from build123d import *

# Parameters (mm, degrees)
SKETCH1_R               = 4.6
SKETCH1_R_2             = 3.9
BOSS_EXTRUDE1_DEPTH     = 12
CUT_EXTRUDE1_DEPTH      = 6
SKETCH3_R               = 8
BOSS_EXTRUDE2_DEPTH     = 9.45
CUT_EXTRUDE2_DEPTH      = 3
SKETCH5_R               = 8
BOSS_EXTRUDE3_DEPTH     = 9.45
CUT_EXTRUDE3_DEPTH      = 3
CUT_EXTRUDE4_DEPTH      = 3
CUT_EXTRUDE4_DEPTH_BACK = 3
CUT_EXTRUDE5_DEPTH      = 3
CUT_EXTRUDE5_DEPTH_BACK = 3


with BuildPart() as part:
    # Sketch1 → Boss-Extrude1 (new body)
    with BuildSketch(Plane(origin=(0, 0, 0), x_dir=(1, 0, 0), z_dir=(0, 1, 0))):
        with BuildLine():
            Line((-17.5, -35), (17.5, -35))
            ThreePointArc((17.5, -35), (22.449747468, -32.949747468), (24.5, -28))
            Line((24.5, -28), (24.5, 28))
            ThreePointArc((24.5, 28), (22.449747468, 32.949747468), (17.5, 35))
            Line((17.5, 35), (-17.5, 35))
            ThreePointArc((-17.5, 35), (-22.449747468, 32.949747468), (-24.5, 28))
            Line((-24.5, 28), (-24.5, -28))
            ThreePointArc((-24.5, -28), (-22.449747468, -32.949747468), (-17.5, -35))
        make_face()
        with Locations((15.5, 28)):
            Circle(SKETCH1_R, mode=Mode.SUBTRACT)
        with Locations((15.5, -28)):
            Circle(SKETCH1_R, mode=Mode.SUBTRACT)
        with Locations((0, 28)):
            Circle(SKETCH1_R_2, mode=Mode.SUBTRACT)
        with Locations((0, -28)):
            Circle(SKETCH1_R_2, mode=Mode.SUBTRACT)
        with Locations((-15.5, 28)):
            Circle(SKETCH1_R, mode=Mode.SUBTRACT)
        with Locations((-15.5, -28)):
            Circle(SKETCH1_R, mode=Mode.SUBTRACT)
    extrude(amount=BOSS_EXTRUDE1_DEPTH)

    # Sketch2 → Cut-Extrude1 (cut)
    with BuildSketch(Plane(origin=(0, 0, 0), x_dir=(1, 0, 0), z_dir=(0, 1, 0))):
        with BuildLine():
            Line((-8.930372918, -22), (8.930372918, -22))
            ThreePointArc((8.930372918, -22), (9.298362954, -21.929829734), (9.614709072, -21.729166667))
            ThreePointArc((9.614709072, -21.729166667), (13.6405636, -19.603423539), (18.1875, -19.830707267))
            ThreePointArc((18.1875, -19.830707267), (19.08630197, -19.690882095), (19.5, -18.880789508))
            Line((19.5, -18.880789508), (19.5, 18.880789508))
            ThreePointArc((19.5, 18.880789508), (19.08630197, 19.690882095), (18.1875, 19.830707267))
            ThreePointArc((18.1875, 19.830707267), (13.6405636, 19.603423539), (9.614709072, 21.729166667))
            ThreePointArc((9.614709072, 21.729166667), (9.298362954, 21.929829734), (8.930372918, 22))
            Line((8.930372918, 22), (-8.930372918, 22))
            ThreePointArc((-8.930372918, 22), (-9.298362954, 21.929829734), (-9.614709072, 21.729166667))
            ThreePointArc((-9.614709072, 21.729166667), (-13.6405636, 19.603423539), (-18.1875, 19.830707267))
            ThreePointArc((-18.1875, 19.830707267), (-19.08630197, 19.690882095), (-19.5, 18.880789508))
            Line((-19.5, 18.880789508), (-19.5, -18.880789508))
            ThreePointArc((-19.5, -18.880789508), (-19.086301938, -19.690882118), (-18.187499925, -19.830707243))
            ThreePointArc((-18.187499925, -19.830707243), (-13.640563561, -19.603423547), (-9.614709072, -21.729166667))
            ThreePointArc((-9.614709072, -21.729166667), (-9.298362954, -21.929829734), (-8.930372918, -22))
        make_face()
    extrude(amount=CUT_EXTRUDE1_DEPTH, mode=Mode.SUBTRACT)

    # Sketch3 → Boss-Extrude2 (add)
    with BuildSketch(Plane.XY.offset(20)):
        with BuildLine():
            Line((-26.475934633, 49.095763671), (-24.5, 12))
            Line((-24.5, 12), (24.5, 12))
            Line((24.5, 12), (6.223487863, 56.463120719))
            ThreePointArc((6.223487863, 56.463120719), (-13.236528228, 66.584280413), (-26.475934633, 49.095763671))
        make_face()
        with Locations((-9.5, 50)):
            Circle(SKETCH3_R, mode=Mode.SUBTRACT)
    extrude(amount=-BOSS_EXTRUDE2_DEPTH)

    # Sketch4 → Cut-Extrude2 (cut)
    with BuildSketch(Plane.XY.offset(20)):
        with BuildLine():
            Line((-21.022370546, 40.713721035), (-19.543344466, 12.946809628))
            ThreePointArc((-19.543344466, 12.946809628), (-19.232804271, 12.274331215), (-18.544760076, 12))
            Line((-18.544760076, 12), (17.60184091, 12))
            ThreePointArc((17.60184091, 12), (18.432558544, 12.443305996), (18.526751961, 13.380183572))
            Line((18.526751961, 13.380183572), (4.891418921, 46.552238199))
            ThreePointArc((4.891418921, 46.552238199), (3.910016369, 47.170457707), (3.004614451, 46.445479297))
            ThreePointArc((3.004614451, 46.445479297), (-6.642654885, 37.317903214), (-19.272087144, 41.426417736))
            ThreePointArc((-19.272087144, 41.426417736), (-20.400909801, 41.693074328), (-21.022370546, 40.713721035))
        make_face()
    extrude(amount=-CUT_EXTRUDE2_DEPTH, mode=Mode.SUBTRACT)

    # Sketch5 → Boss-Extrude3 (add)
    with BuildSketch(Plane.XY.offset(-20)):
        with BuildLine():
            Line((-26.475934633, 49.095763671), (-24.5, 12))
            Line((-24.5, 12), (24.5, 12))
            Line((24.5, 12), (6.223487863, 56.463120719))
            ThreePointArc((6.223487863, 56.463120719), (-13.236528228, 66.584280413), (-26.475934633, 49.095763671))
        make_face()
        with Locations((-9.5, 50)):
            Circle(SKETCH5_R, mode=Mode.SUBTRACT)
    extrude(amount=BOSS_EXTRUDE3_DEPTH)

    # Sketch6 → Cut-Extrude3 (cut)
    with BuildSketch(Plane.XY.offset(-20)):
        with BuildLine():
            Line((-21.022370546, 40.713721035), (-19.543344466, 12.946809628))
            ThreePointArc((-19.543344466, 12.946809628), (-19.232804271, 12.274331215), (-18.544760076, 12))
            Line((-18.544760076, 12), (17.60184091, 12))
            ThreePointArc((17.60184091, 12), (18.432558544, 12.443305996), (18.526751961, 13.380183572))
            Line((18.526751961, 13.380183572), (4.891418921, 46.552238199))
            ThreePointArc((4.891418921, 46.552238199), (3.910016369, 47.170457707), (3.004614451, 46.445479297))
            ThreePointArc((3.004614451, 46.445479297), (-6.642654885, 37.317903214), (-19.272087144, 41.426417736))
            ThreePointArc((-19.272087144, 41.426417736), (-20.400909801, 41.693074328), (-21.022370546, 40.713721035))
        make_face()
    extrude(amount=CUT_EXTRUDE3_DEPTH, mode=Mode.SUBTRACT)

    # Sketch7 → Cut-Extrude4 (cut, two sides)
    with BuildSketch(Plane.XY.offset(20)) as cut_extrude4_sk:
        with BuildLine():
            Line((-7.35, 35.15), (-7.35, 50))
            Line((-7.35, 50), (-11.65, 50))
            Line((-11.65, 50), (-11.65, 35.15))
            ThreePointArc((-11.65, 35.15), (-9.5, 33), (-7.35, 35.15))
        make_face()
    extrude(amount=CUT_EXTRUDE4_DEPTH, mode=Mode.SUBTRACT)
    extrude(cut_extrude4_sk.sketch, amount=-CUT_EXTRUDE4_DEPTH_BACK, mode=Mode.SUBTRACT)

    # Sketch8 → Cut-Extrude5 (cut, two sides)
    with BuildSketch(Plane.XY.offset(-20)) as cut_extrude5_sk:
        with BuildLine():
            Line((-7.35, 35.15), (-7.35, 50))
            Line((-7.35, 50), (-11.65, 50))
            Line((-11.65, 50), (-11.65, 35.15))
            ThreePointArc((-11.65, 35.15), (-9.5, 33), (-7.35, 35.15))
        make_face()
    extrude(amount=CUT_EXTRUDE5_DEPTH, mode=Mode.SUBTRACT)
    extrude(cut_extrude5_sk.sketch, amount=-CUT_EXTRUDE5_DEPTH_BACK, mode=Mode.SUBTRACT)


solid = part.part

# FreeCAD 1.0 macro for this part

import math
import FreeCAD as App
import Part
import Sketcher
from FreeCAD import Vector

doc = App.newDocument("Part")
body = doc.addObject("PartDesign::Body", "Body")

# Sketch on XZ plane
sketch1 = body.newObject("Sketcher::SketchObject", "Sketch")
sketch1.AttachmentSupport = (doc.getObject("XZ_Plane"), [""])
sketch1.MapMode = "FlatFace"
sketch1.addGeometry([
    Part.LineSegment(Vector(-17.5, 35, 0), Vector(17.5, 35, 0)),  # 0
    Part.ArcOfCircle(Part.Circle(Vector(17.5, 28, 0), Vector(0, 0, 1), 7), math.radians(0), math.radians(90)),  # 1
    Part.LineSegment(Vector(24.5, 28, 0), Vector(24.5, -28, 0)),  # 2
    Part.ArcOfCircle(Part.Circle(Vector(17.5, -28, 0), Vector(0, 0, 1), 7), math.radians(-90), math.radians(0)),  # 3
    Part.LineSegment(Vector(17.5, -35, 0), Vector(-17.5, -35, 0)),  # 4
    Part.ArcOfCircle(Part.Circle(Vector(-17.5, -28, 0), Vector(0, 0, 1), 7), math.radians(-180), math.radians(-90)),  # 5
    Part.LineSegment(Vector(-24.5, -28, 0), Vector(-24.5, 28, 0)),  # 6
    Part.ArcOfCircle(Part.Circle(Vector(-17.5, 28, 0), Vector(0, 0, 1), 7), math.radians(90), math.radians(180)),  # 7
    Part.Circle(Vector(-15.5, 28, 0), Vector(0, 0, 1), 4.6),  # 8
    Part.Circle(Vector(0, 28, 0), Vector(0, 0, 1), 3.9),  # 9
    Part.Circle(Vector(15.5, 28, 0), Vector(0, 0, 1), 4.6),  # 10
    Part.Circle(Vector(-15.5, -28, 0), Vector(0, 0, 1), 4.6),  # 11
    Part.Circle(Vector(0, -28, 0), Vector(0, 0, 1), 3.9),  # 12
    Part.Circle(Vector(15.5, -28, 0), Vector(0, 0, 1), 4.6),  # 13
], False)
sketch1.addConstraint([
    Sketcher.Constraint("Tangent", 0, 2, 1, 2),
    Sketcher.Constraint("Tangent", 1, 1, 2, 1),
    Sketcher.Constraint("Tangent", 2, 2, 3, 2),
    Sketcher.Constraint("Tangent", 3, 1, 4, 1),
    Sketcher.Constraint("Tangent", 4, 2, 5, 2),
    Sketcher.Constraint("Tangent", 5, 1, 6, 1),
    Sketcher.Constraint("Tangent", 6, 2, 7, 2),
    Sketcher.Constraint("Tangent", 7, 1, 0, 1),
    Sketcher.Constraint("Horizontal", 0),
    Sketcher.Constraint("Vertical", 2),
    Sketcher.Constraint("Horizontal", 4),
    Sketcher.Constraint("Vertical", 6),
    Sketcher.Constraint("Equal", 1, 3),
    Sketcher.Constraint("Equal", 3, 5),
    Sketcher.Constraint("Equal", 5, 7),
    Sketcher.Constraint("Equal", 8, 10),
    Sketcher.Constraint("Equal", 10, 11),
    Sketcher.Constraint("Equal", 9, 12),
    Sketcher.Constraint("Equal", 11, 13),
    Sketcher.Constraint("Symmetric", 1, 3, 5, 3, -1, 1),
    Sketcher.Constraint("Symmetric", 10, 3, 11, 3, -1, 1),
    Sketcher.Constraint("Symmetric", 9, 3, 12, 3, -1, 1),
    Sketcher.Constraint("Symmetric", 8, 3, 13, 3, -1, 1),
    Sketcher.Constraint("Symmetric", 8, 3, 10, 3, -2),
    Sketcher.Constraint("PointOnObject", 9, 3, -2),
    Sketcher.Constraint("Horizontal", 7, 3, 8, 3),
    Sketcher.Constraint("Horizontal", 8, 3, 9, 3),
    Sketcher.Constraint("Radius", 1, 7.0),
    Sketcher.Constraint("Diameter", 8, 9.2),
    Sketcher.Constraint("Diameter", 9, 7.8),
    Sketcher.Constraint("DistanceX", 0, 1, 0, 2, 35.0),
    Sketcher.Constraint("DistanceY", 2, 2, 2, 1, 56.0),
    Sketcher.Constraint("DistanceX", 7, 3, 8, 3, 2.0),
])
pad1 = body.newObject("PartDesign::Pad", "Pad")
pad1.Profile = sketch1
pad1.Length = 12
pad1.Reversed = True

# Sketch on XZ plane
sketch2 = body.newObject("Sketcher::SketchObject", "Sketch001")
sketch2.AttachmentSupport = (doc.getObject("XZ_Plane"), [""])
sketch2.MapMode = "FlatFace"
sketch2.addGeometry([
    Part.LineSegment(Vector(-8.9, 22, 0), Vector(8.9, 22, 0)),  # 0
    Part.ArcOfCircle(Part.Circle(Vector(8.9, 21, 0), Vector(0, 0, 1), 1), math.radians(47), math.radians(90)),  # 1
    Part.ArcOfCircle(Part.Circle(Vector(15.5, 28, 0), Vector(0, 0, 1), 8.6), math.radians(-133), math.radians(-72)),  # 2
    Part.ArcOfCircle(Part.Circle(Vector(18.5, 18.9, 0), Vector(0, 0, 1), 1), math.radians(0), math.radians(108)),  # 3
    Part.LineSegment(Vector(19.5, 18.9, 0), Vector(19.5, -18.9, 0)),  # 4
    Part.ArcOfCircle(Part.Circle(Vector(18.5, -18.9, 0), Vector(0, 0, 1), 1), math.radians(-108), math.radians(0)),  # 5
    Part.ArcOfCircle(Part.Circle(Vector(15.5, -28, 0), Vector(0, 0, 1), 8.6), math.radians(72), math.radians(133)),  # 6
    Part.ArcOfCircle(Part.Circle(Vector(8.9, -21, 0), Vector(0, 0, 1), 1), math.radians(-90), math.radians(-47)),  # 7
    Part.LineSegment(Vector(8.9, -22, 0), Vector(-8.9, -22, 0)),  # 8
    Part.ArcOfCircle(Part.Circle(Vector(-8.9, -21, 0), Vector(0, 0, 1), 1), math.radians(-133), math.radians(-90)),  # 9
    Part.ArcOfCircle(Part.Circle(Vector(-15.5, -28, 0), Vector(0, 0, 1), 8.6), math.radians(47), math.radians(108)),  # 10
    Part.ArcOfCircle(Part.Circle(Vector(-18.5, -18.9, 0), Vector(0, 0, 1), 1), math.radians(180), math.radians(288)),  # 11
    Part.LineSegment(Vector(-19.5, -18.9, 0), Vector(-19.5, 18.9, 0)),  # 12
    Part.ArcOfCircle(Part.Circle(Vector(-18.5, 18.9, 0), Vector(0, 0, 1), 1), math.radians(72), math.radians(180)),  # 13
    Part.ArcOfCircle(Part.Circle(Vector(-15.5, 28, 0), Vector(0, 0, 1), 8.6), math.radians(-108), math.radians(-47)),  # 14
    Part.ArcOfCircle(Part.Circle(Vector(-8.9, 21, 0), Vector(0, 0, 1), 1), math.radians(90), math.radians(133)),  # 15
], False)
sketch2.addConstraint([
    Sketcher.Constraint("Tangent", 0, 2, 1, 2),
    Sketcher.Constraint("Tangent", 1, 1, 2, 1),
    Sketcher.Constraint("Tangent", 2, 2, 3, 2),
    Sketcher.Constraint("Tangent", 3, 1, 4, 1),
    Sketcher.Constraint("Tangent", 4, 2, 5, 2),
    Sketcher.Constraint("Tangent", 5, 1, 6, 1),
    Sketcher.Constraint("Tangent", 6, 2, 7, 2),
    Sketcher.Constraint("Tangent", 7, 1, 8, 1),
    Sketcher.Constraint("Tangent", 8, 2, 9, 2),
    Sketcher.Constraint("Tangent", 9, 1, 10, 1),
    Sketcher.Constraint("Tangent", 10, 2, 11, 2),
    Sketcher.Constraint("Tangent", 11, 1, 12, 1),
    Sketcher.Constraint("Tangent", 12, 2, 13, 2),
    Sketcher.Constraint("Tangent", 13, 1, 14, 1),
    Sketcher.Constraint("Tangent", 14, 2, 15, 2),
    Sketcher.Constraint("Tangent", 15, 1, 0, 1),
    Sketcher.Constraint("Horizontal", 0),
    Sketcher.Constraint("Vertical", 4),
    Sketcher.Constraint("Horizontal", 8),
    Sketcher.Constraint("Vertical", 12),
    Sketcher.Constraint("Equal", 1, 3),
    Sketcher.Constraint("Equal", 3, 5),
    Sketcher.Constraint("Equal", 2, 6),
    Sketcher.Constraint("Equal", 5, 7),
    Sketcher.Constraint("Equal", 7, 9),
    Sketcher.Constraint("Equal", 6, 10),
    Sketcher.Constraint("Equal", 9, 11),
    Sketcher.Constraint("Equal", 11, 13),
    Sketcher.Constraint("Equal", 10, 14),
    Sketcher.Constraint("Equal", 13, 15),
    Sketcher.Constraint("Symmetric", 1, 3, 9, 3, -1, 1),
    Sketcher.Constraint("Symmetric", 3, 3, 11, 3, -1, 1),
    Sketcher.Constraint("Symmetric", 6, 3, 14, 3, -1, 1),
    Sketcher.Constraint("Symmetric", 6, 3, 10, 3, -2),
    Sketcher.Constraint("Radius", 1, 1.0),
    Sketcher.Constraint("Radius", 2, 8.6),
    Sketcher.Constraint("DistanceY", -1, 1, 1, 3, 21.0),
    Sketcher.Constraint("DistanceY", -1, 1, 2, 3, 28.0),
    Sketcher.Constraint("DistanceX", 2, 3, 3, 3, 3.0),
    Sketcher.Constraint("DistanceX", 10, 3, 6, 3, 31.0),
])
pocket1 = body.newObject("PartDesign::Pocket", "Pocket")
pocket1.Profile = sketch2
pocket1.Length = 6

# Sketch on XY plane
sketch3 = body.newObject("Sketcher::SketchObject", "Sketch002")
sketch3.AttachmentSupport = (doc.getObject("XY_Plane"), [""])
sketch3.MapMode = "FlatFace"
sketch3.AttachmentOffset = App.Placement(Vector(0, 0, 20), App.Rotation())
sketch3.addGeometry([
    Part.LineSegment(Vector(-26, 49, 0), Vector(-24, 12, 0)),  # 0
    Part.LineSegment(Vector(-24, 12, 0), Vector(24, 12, 0)),  # 1
    Part.LineSegment(Vector(24, 12, 0), Vector(6, 56, 0)),  # 2
    Part.ArcOfCircle(Part.Circle(Vector(-10, 50, 0), Vector(0, 0, 1), 17), math.radians(22), math.radians(183)),  # 3
    Part.Circle(Vector(-10, 50, 0), Vector(0, 0, 1), 8),  # 4
], False)
sketch3.addConstraint([
    Sketcher.Constraint("Coincident", 0, 2, 1, 1),
    Sketcher.Constraint("Coincident", 1, 2, 2, 1),
    Sketcher.Constraint("Tangent", 2, 2, 3, 1),
    Sketcher.Constraint("Tangent", 3, 2, 0, 1),
    Sketcher.Constraint("Horizontal", 1),
    Sketcher.Constraint("Coincident", 4, 3, 3, 3),
    Sketcher.Constraint("Diameter", 4, 16.0),
    Sketcher.Constraint("Radius", 3, 17.0),
    Sketcher.Constraint("DistanceX", 1, 1, 1, 2, 49.0),
    Sketcher.Constraint("DistanceY", -1, 1, 3, 3, 50.0),
    Sketcher.Constraint("DistanceY", -1, 1, 0, 2, 12.0),
    Sketcher.Constraint("DistanceX", 0, 2, 3, 3, 15.0),
    Sketcher.Constraint("DistanceX", 3, 3, -1, 1, 9.5),
])
pad2 = body.newObject("PartDesign::Pad", "Pad001")
pad2.Profile = sketch3
pad2.Length = 9.45
pad2.Reversed = True

# Sketch on XY plane
sketch4 = body.newObject("Sketcher::SketchObject", "Sketch003")
sketch4.AttachmentSupport = (doc.getObject("XY_Plane"), [""])
sketch4.MapMode = "FlatFace"
sketch4.AttachmentOffset = App.Placement(Vector(0, 0, 20), App.Rotation())
sketch4.addGeometry([
    Part.LineSegment(Vector(-21, 40.7, 0), Vector(-19.5, 12.9, 0)),  # 0
    Part.ArcOfCircle(Part.Circle(Vector(-18.5, 13, 0), Vector(0, 0, 1), 1), math.radians(-177), math.radians(-90)),  # 1
    Part.LineSegment(Vector(-18.5, 12, 0), Vector(17.6, 12, 0)),  # 2
    Part.ArcOfCircle(Part.Circle(Vector(17.6, 13, 0), Vector(0, 0, 1), 1), math.radians(-90), math.radians(22)),  # 3
    Part.LineSegment(Vector(18.5, 13.4, 0), Vector(4.9, 46.6, 0)),  # 4
    Part.ArcOfCircle(Part.Circle(Vector(4, 46.2, 0), Vector(0, 0, 1), 1), math.radians(22), math.radians(164)),  # 5
    Part.ArcOfCircle(Part.Circle(Vector(-9.5, 50, 0), Vector(0, 0, 1), 13), math.radians(-139), math.radians(-16)),  # 6
    Part.ArcOfCircle(Part.Circle(Vector(-20, 40.8, 0), Vector(0, 0, 1), 1), math.radians(41), math.radians(183)),  # 7
], False)
sketch4.addConstraint([
    Sketcher.Constraint("Tangent", 0, 2, 1, 1),
    Sketcher.Constraint("Tangent", 1, 2, 2, 1),
    Sketcher.Constraint("Tangent", 2, 2, 3, 1),
    Sketcher.Constraint("Tangent", 3, 2, 4, 1),
    Sketcher.Constraint("Tangent", 4, 2, 5, 1),
    Sketcher.Constraint("Tangent", 5, 2, 6, 2),
    Sketcher.Constraint("Tangent", 6, 1, 7, 1),
    Sketcher.Constraint("Tangent", 7, 2, 0, 1),
    Sketcher.Constraint("Horizontal", 2),
    Sketcher.Constraint("Equal", 1, 3),
    Sketcher.Constraint("Equal", 3, 5),
    Sketcher.Constraint("Equal", 5, 7),
    Sketcher.Constraint("Radius", 1, 1.0),
    Sketcher.Constraint("Radius", 6, 13.0),
    Sketcher.Constraint("DistanceY", -1, 1, 1, 3, 13.0),
    Sketcher.Constraint("DistanceY", -1, 1, 6, 3, 50.0),
    Sketcher.Constraint("DistanceX", 6, 3, -1, 1, 9.5),
    Sketcher.Constraint("DistanceX", 2, 1, 2, 2, 36.146601),
    Sketcher.Constraint("DistanceY", 0, 2, 7, 3, 27.820102),
    Sketcher.Constraint("DistanceX", 7, 3, 5, 2, 23.028401),
    Sketcher.Constraint("Distance", 4, 35.86513),
])
pocket2 = body.newObject("PartDesign::Pocket", "Pocket001")
pocket2.Profile = sketch4
pocket2.Length = 3

# Sketch on XY plane
sketch5 = body.newObject("Sketcher::SketchObject", "Sketch004")
sketch5.AttachmentSupport = (doc.getObject("XY_Plane"), [""])
sketch5.MapMode = "FlatFace"
sketch5.AttachmentOffset = App.Placement(Vector(0, 0, -20), App.Rotation())
sketch5.addGeometry([
    Part.LineSegment(Vector(-26, 49, 0), Vector(-24, 12, 0)),  # 0
    Part.LineSegment(Vector(-24, 12, 0), Vector(24, 12, 0)),  # 1
    Part.LineSegment(Vector(24, 12, 0), Vector(6, 56, 0)),  # 2
    Part.ArcOfCircle(Part.Circle(Vector(-10, 50, 0), Vector(0, 0, 1), 17), math.radians(22), math.radians(183)),  # 3
    Part.Circle(Vector(-10, 50, 0), Vector(0, 0, 1), 8),  # 4
], False)
sketch5.addConstraint([
    Sketcher.Constraint("Coincident", 0, 2, 1, 1),
    Sketcher.Constraint("Coincident", 1, 2, 2, 1),
    Sketcher.Constraint("Tangent", 2, 2, 3, 1),
    Sketcher.Constraint("Tangent", 3, 2, 0, 1),
    Sketcher.Constraint("Horizontal", 1),
    Sketcher.Constraint("Coincident", 4, 3, 3, 3),
    Sketcher.Constraint("Diameter", 4, 16.0),
    Sketcher.Constraint("Radius", 3, 17.0),
    Sketcher.Constraint("DistanceX", 1, 1, 1, 2, 49.0),
    Sketcher.Constraint("DistanceY", -1, 1, 3, 3, 50.0),
    Sketcher.Constraint("DistanceY", -1, 1, 0, 2, 12.0),
    Sketcher.Constraint("DistanceX", 0, 2, 3, 3, 15.0),
    Sketcher.Constraint("DistanceX", 3, 3, -1, 1, 9.5),
])
pad3 = body.newObject("PartDesign::Pad", "Pad002")
pad3.Profile = sketch5
pad3.Length = 9.45

# Sketch on XY plane
sketch6 = body.newObject("Sketcher::SketchObject", "Sketch005")
sketch6.AttachmentSupport = (doc.getObject("XY_Plane"), [""])
sketch6.MapMode = "FlatFace"
sketch6.AttachmentOffset = App.Placement(Vector(0, 0, -20), App.Rotation())
sketch6.addGeometry([
    Part.LineSegment(Vector(-21, 40.7, 0), Vector(-19.5, 12.9, 0)),  # 0
    Part.ArcOfCircle(Part.Circle(Vector(-18.5, 13, 0), Vector(0, 0, 1), 1), math.radians(-177), math.radians(-90)),  # 1
    Part.LineSegment(Vector(-18.5, 12, 0), Vector(17.6, 12, 0)),  # 2
    Part.ArcOfCircle(Part.Circle(Vector(17.6, 13, 0), Vector(0, 0, 1), 1), math.radians(-90), math.radians(22)),  # 3
    Part.LineSegment(Vector(18.5, 13.4, 0), Vector(4.9, 46.6, 0)),  # 4
    Part.ArcOfCircle(Part.Circle(Vector(4, 46.2, 0), Vector(0, 0, 1), 1), math.radians(22), math.radians(164)),  # 5
    Part.ArcOfCircle(Part.Circle(Vector(-9.5, 50, 0), Vector(0, 0, 1), 13), math.radians(-139), math.radians(-16)),  # 6
    Part.ArcOfCircle(Part.Circle(Vector(-20, 40.8, 0), Vector(0, 0, 1), 1), math.radians(41), math.radians(183)),  # 7
], False)
sketch6.addConstraint([
    Sketcher.Constraint("Tangent", 0, 2, 1, 1),
    Sketcher.Constraint("Tangent", 1, 2, 2, 1),
    Sketcher.Constraint("Tangent", 2, 2, 3, 1),
    Sketcher.Constraint("Tangent", 3, 2, 4, 1),
    Sketcher.Constraint("Tangent", 4, 2, 5, 1),
    Sketcher.Constraint("Tangent", 5, 2, 6, 2),
    Sketcher.Constraint("Tangent", 6, 1, 7, 1),
    Sketcher.Constraint("Tangent", 7, 2, 0, 1),
    Sketcher.Constraint("Horizontal", 2),
    Sketcher.Constraint("Equal", 1, 3),
    Sketcher.Constraint("Equal", 3, 5),
    Sketcher.Constraint("Equal", 5, 7),
    Sketcher.Constraint("Radius", 1, 1.0),
    Sketcher.Constraint("Radius", 6, 13.0),
    Sketcher.Constraint("DistanceY", -1, 1, 1, 3, 13.0),
    Sketcher.Constraint("DistanceY", -1, 1, 6, 3, 50.0),
    Sketcher.Constraint("DistanceX", 6, 3, -1, 1, 9.5),
    Sketcher.Constraint("DistanceX", 2, 1, 2, 2, 36.146601),
    Sketcher.Constraint("DistanceY", 0, 2, 7, 3, 27.820102),
    Sketcher.Constraint("DistanceX", 7, 3, 5, 2, 23.028401),
    Sketcher.Constraint("Distance", 4, 35.86513),
])
pocket3 = body.newObject("PartDesign::Pocket", "Pocket002")
pocket3.Profile = sketch6
pocket3.Length = 3
pocket3.Reversed = True

# Sketch on XY plane
sketch7 = body.newObject("Sketcher::SketchObject", "Sketch006")
sketch7.AttachmentSupport = (doc.getObject("XY_Plane"), [""])
sketch7.MapMode = "FlatFace"
sketch7.AttachmentOffset = App.Placement(Vector(0, 0, 20), App.Rotation())
sketch7.addGeometry([
    Part.LineSegment(Vector(-7.3, 35.1, 0), Vector(-7.3, 50, 0)),
    Part.LineSegment(Vector(-7.3, 50, 0), Vector(-11.7, 50, 0)),
    Part.LineSegment(Vector(-11.7, 50, 0), Vector(-11.7, 35.1, 0)),
    Part.ArcOfCircle(Part.Circle(Vector(-9.5, 35.1, 0), Vector(0, 0, 1), 2.1), math.radians(180), math.radians(360)),
], False)
sketch7.addConstraint([
    Sketcher.Constraint("Coincident", 0, 2, 1, 1),
    Sketcher.Constraint("Coincident", 1, 2, 2, 1),
    Sketcher.Constraint("Tangent", 2, 2, 3, 1),
    Sketcher.Constraint("Tangent", 3, 2, 0, 1),
    Sketcher.Constraint("Vertical", 0),
    Sketcher.Constraint("Horizontal", 1),
    Sketcher.Constraint("Vertical", 2),
    Sketcher.Constraint("Radius", 3, 2.15),
    Sketcher.Constraint("DistanceY", -1, 1, 0, 2, 50.0),
    Sketcher.Constraint("DistanceY", 0, 1, 0, 2, 14.85),
    Sketcher.Constraint("DistanceX", 3, 3, -1, 1, 9.5),
])
pocket4 = body.newObject("PartDesign::Pocket", "Pocket003")
pocket4.Profile = sketch7
pocket4.Type = "TwoLengths"
pocket4.Length = 3
pocket4.Length2 = 3
pocket4.Reversed = True

# Sketch on XY plane
sketch8 = body.newObject("Sketcher::SketchObject", "Sketch007")
sketch8.AttachmentSupport = (doc.getObject("XY_Plane"), [""])
sketch8.MapMode = "FlatFace"
sketch8.AttachmentOffset = App.Placement(Vector(0, 0, -20), App.Rotation())
sketch8.addGeometry([
    Part.LineSegment(Vector(-7.3, 35.1, 0), Vector(-7.3, 50, 0)),
    Part.LineSegment(Vector(-7.3, 50, 0), Vector(-11.7, 50, 0)),
    Part.LineSegment(Vector(-11.7, 50, 0), Vector(-11.7, 35.1, 0)),
    Part.ArcOfCircle(Part.Circle(Vector(-9.5, 35.1, 0), Vector(0, 0, 1), 2.1), math.radians(180), math.radians(360)),
], False)
sketch8.addConstraint([
    Sketcher.Constraint("Coincident", 0, 2, 1, 1),
    Sketcher.Constraint("Coincident", 1, 2, 2, 1),
    Sketcher.Constraint("Tangent", 2, 2, 3, 1),
    Sketcher.Constraint("Tangent", 3, 2, 0, 1),
    Sketcher.Constraint("Vertical", 0),
    Sketcher.Constraint("Horizontal", 1),
    Sketcher.Constraint("Vertical", 2),
    Sketcher.Constraint("Radius", 3, 2.15),
    Sketcher.Constraint("DistanceY", -1, 1, 0, 2, 50.0),
    Sketcher.Constraint("DistanceY", 0, 1, 0, 2, 14.85),
    Sketcher.Constraint("DistanceX", 3, 3, -1, 1, 9.5),
])
pocket5 = body.newObject("PartDesign::Pocket", "Pocket004")
pocket5.Profile = sketch8
pocket5.Type = "TwoLengths"
pocket5.Length = 3
pocket5.Length2 = 3
pocket5.Reversed = True

doc.recompute()
